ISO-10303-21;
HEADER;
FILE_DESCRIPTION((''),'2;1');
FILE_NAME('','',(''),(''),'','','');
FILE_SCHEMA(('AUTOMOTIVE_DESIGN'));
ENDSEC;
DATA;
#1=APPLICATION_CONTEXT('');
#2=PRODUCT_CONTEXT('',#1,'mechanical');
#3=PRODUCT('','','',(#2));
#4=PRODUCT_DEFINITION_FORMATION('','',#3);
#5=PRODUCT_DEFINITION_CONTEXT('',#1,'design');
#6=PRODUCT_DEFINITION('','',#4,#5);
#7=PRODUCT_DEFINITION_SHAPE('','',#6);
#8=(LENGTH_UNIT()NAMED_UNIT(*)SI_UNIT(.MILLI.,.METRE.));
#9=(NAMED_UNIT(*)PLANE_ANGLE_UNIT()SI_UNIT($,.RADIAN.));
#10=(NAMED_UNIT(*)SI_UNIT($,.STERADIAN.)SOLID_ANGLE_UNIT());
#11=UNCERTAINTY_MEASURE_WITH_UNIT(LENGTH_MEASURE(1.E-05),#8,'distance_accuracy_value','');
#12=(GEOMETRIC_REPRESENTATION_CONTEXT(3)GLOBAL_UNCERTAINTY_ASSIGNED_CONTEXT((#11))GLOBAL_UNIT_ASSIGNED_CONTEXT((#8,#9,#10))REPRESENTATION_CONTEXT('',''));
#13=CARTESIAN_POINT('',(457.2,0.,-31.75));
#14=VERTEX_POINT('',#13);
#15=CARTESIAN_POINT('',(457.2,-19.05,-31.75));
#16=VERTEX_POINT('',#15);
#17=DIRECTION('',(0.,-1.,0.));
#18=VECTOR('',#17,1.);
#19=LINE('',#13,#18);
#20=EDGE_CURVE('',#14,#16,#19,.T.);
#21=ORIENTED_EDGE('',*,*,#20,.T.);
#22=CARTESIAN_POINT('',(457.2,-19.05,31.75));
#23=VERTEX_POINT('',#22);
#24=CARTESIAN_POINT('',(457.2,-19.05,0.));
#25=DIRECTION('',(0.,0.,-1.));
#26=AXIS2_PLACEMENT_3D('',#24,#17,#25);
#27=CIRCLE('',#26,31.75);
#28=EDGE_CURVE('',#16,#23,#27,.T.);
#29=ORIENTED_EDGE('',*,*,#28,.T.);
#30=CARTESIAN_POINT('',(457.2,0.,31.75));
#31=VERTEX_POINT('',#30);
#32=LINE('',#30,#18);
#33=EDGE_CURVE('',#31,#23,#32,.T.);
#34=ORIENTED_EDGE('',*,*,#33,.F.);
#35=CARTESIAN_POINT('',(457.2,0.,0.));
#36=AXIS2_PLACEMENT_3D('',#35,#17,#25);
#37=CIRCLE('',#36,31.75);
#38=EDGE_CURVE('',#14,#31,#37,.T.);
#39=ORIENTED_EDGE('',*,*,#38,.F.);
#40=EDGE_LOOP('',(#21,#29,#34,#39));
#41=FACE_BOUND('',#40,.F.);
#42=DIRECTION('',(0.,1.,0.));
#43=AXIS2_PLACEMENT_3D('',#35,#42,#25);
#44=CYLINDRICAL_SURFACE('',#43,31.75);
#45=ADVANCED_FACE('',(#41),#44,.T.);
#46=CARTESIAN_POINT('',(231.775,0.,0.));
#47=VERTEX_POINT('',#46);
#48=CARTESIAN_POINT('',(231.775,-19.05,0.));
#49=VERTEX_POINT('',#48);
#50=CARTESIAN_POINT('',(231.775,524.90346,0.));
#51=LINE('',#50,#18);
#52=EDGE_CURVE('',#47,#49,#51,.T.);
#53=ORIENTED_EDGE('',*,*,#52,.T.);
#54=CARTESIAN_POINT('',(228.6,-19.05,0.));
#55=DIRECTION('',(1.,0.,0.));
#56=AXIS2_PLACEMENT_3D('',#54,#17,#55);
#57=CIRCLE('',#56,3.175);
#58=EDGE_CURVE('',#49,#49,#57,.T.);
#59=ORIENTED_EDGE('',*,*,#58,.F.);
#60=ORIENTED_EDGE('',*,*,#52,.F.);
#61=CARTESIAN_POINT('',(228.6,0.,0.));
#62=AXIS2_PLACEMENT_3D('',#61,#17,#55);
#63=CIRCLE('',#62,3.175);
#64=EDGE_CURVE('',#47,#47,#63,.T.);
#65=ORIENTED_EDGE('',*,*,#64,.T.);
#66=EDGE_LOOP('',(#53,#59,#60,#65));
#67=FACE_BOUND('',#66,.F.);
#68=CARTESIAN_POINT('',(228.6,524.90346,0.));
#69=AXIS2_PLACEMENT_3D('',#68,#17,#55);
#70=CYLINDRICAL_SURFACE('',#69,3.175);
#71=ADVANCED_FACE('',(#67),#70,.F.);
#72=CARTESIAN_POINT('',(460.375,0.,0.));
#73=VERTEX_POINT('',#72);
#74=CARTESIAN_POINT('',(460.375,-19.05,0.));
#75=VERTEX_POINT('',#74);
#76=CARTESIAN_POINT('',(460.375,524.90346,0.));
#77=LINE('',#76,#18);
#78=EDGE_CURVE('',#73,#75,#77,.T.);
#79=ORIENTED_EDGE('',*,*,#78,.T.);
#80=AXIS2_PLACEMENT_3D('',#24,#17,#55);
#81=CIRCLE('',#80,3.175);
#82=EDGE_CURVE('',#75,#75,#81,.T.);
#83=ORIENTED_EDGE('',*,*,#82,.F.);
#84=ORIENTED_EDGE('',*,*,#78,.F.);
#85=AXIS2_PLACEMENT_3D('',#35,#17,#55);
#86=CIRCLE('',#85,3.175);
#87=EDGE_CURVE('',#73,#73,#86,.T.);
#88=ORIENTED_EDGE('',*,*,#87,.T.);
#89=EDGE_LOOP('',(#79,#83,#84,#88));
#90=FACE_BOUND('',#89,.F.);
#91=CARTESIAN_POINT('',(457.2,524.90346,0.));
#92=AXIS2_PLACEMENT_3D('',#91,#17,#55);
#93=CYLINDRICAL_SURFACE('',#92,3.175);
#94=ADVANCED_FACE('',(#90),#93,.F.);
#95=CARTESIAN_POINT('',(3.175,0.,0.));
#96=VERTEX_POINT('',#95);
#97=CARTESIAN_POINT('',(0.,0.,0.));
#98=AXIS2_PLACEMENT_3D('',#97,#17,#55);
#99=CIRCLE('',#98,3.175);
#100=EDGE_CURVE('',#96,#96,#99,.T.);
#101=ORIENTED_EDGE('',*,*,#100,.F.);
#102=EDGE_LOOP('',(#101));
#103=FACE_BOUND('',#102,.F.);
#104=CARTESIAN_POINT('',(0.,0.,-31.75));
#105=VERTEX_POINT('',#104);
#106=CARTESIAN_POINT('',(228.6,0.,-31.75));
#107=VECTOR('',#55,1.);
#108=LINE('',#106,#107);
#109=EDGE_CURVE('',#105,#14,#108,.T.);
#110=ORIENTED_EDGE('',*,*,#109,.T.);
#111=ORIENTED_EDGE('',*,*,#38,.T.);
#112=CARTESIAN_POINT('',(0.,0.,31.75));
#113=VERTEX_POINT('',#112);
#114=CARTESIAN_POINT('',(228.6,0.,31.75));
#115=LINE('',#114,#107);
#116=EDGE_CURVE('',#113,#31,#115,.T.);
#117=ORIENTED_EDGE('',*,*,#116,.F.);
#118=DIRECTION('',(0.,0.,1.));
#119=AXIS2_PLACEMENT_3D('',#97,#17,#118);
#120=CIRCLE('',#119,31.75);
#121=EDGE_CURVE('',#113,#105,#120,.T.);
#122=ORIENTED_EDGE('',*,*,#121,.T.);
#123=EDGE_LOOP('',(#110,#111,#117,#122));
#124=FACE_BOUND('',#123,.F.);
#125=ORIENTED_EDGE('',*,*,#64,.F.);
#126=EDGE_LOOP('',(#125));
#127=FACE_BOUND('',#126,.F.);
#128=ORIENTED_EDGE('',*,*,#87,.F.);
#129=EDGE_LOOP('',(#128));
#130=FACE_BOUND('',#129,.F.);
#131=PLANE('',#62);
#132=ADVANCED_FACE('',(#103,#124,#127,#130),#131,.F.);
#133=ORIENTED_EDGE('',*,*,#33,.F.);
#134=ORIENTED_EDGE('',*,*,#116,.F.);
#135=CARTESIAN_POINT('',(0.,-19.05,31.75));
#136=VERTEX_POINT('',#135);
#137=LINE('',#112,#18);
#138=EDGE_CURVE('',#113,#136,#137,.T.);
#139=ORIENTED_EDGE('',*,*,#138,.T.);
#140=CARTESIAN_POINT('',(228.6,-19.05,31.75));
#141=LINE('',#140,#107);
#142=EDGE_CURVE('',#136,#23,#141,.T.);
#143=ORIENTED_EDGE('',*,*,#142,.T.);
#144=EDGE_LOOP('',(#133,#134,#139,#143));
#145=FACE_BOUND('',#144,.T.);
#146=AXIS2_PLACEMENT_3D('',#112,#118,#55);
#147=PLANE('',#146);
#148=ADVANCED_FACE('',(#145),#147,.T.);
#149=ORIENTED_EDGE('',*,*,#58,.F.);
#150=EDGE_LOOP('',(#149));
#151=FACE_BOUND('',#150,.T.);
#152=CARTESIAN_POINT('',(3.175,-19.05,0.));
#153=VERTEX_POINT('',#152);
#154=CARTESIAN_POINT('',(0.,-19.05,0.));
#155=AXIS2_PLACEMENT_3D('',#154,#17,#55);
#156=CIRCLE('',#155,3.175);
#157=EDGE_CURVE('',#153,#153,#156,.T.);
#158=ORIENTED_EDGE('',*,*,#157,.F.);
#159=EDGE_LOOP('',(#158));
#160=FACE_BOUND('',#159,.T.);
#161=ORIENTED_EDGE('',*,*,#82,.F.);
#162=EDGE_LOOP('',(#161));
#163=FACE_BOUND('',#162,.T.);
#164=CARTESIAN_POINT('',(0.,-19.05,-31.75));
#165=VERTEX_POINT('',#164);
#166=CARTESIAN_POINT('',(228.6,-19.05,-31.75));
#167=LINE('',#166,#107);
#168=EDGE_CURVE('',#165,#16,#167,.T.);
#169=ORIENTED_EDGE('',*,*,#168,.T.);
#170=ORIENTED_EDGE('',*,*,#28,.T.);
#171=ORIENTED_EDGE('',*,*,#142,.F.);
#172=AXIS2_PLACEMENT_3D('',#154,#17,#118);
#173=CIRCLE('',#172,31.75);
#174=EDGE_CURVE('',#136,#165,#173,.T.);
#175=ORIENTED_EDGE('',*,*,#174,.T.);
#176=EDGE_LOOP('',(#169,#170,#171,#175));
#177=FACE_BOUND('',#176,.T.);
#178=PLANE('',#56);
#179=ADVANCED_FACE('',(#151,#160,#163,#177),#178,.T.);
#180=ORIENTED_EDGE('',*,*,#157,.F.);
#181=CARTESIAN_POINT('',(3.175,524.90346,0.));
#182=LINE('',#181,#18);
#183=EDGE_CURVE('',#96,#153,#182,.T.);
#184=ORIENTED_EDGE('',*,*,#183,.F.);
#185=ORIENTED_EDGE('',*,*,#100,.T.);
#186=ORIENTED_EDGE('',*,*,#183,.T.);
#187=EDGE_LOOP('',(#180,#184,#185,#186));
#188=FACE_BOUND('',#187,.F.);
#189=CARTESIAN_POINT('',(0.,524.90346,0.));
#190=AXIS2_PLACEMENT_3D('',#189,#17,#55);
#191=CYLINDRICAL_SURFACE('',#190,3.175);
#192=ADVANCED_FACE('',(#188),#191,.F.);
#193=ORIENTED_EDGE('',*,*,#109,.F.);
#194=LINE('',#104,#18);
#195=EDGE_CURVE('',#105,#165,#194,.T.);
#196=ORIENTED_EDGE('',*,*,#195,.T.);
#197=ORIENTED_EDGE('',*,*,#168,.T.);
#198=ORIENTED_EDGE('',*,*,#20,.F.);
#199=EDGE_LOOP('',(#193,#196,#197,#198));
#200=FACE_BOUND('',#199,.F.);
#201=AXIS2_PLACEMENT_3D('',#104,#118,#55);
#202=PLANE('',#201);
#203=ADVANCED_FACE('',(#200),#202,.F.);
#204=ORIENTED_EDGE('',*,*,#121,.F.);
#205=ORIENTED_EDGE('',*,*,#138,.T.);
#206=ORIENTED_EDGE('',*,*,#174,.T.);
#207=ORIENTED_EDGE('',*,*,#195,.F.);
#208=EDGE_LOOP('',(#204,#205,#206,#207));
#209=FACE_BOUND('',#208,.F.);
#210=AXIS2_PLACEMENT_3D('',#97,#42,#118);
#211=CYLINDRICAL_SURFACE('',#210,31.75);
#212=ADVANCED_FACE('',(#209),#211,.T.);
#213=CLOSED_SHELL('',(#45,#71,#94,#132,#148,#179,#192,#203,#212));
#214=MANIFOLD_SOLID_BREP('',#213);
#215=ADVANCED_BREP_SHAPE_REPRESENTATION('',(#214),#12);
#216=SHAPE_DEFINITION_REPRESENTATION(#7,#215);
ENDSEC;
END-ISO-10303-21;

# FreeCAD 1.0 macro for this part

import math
import FreeCAD as App
import Part
import Sketcher
from FreeCAD import Vector
Q = App.Units.Quantity

doc = App.newDocument("Part")
params = doc.addObject("Spreadsheet::Sheet", "Params")
for row, (alias, value) in enumerate([
    ("sketch1_width", "18 in"),
    ("sketch1_radius", "1.25 in"),
    ("pad1_length", "0.75 in"),
    ("sketch2_diameter", "0.25 in"),
    ("hole_diameter", "0.25 in"),
], start=1):
    params.set(f"A{row}", alias)
    params.set(f"B{row}", "=" + value)
    params.setAlias(f"B{row}", alias)

body = doc.addObject("PartDesign::Body", "Body")

# Sketch on XZ plane
sketch1 = body.newObject("Sketcher::SketchObject", "Sketch")
sketch1.AttachmentSupport = (doc.getObject("XZ_Plane"), [""])
sketch1.MapMode = "FlatFace"
sketch1.addGeometry(Part.LineSegment(Vector(0, -32, 0), Vector(457, -32, 0)), False)
sketch1.addGeometry(Part.ArcOfCircle(Part.Circle(Vector(457, 0, 0), Vector(0, 0, 1), 32), math.radians(-90), math.radians(90)), False)
sketch1.addGeometry(Part.LineSegment(Vector(457, 32, 0), Vector(0, 32, 0)), False)
sketch1.addGeometry(Part.ArcOfCircle(Part.Circle(Vector(0, 0, 0), Vector(0, 0, 1), 32), math.radians(90), math.radians(270)), False)
sketch1.addConstraint(Sketcher.Constraint("Tangent", 0, 2, 1, 1))
sketch1.addConstraint(Sketcher.Constraint("Tangent", 1, 2, 2, 1))
sketch1.addConstraint(Sketcher.Constraint("Tangent", 2, 2, 3, 1))
sketch1.addConstraint(Sketcher.Constraint("Tangent", 3, 2, 0, 1))
sketch1.addConstraint(Sketcher.Constraint("Horizontal", 0))
sketch1.addConstraint(Sketcher.Constraint("Horizontal", 2))
sketch1.addConstraint(Sketcher.Constraint("Coincident", 3, 3, -1, 1))
sketch1.addConstraint(Sketcher.Constraint("DistanceX", 0, 1, 0, 2, Q("18 in")))
sketch1.addConstraint(Sketcher.Constraint("Radius", 1, Q("1.25 in")))
sketch1.setExpression("Constraints[7]", "Params.sketch1_width")
sketch1.setExpression("Constraints[8]", "Params.sketch1_radius")
pad1 = body.newObject("PartDesign::Pad", "Pad")
pad1.Profile = sketch1
pad1.setExpression("Length", "Params.pad1_length")

# Sketch on XZ plane
sketch2 = body.newObject("Sketcher::SketchObject", "Sketch001")
sketch2.AttachmentSupport = (doc.getObject("XZ_Plane"), [""])
sketch2.MapMode = "FlatFace"
sketch2.addGeometry(Part.Circle(Vector(457.2, 0, 0), Vector(0, 0, 1), 3.2), False)
sketch2.addGeometry(Part.Circle(Vector(0, 0, 0), Vector(0, 0, 1), 3.2), False)
sketch2.addGeometry(Part.Circle(Vector(228.6, 0, 0), Vector(0, 0, 1), 3.2), False)
sketch2.addConstraint(Sketcher.Constraint("Coincident", 1, 3, -1, 1))
sketch2.addConstraint(Sketcher.Constraint("Equal", 0, 1))
sketch2.addConstraint(Sketcher.Constraint("Equal", 1, 2))
sketch2.addConstraint(Sketcher.Constraint("PointOnObject", 0, 3, -1))
sketch2.addConstraint(Sketcher.Constraint("PointOnObject", 2, 3, -1))
sketch2.addConstraint(Sketcher.Constraint("Diameter", 0, Q("0.25 in")))
sketch2.addConstraint(Sketcher.Constraint("DistanceX", -1, 1, 0, 3, Q("18 in")))
sketch2.addConstraint(Sketcher.Constraint("DistanceX", -1, 1, 2, 3, Q("9 in")))
sketch2.setExpression("Constraints[5]", "Params.sketch2_diameter")
doc.recompute()
hole = body.newObject("PartDesign::Hole", "Hole")
hole.Profile = sketch2
hole.ThreadType = "None"
hole.setExpression("Diameter", "Params.hole_diameter")
hole.DepthType = "ThroughAll"
hole.Reversed = True

doc.recompute()
